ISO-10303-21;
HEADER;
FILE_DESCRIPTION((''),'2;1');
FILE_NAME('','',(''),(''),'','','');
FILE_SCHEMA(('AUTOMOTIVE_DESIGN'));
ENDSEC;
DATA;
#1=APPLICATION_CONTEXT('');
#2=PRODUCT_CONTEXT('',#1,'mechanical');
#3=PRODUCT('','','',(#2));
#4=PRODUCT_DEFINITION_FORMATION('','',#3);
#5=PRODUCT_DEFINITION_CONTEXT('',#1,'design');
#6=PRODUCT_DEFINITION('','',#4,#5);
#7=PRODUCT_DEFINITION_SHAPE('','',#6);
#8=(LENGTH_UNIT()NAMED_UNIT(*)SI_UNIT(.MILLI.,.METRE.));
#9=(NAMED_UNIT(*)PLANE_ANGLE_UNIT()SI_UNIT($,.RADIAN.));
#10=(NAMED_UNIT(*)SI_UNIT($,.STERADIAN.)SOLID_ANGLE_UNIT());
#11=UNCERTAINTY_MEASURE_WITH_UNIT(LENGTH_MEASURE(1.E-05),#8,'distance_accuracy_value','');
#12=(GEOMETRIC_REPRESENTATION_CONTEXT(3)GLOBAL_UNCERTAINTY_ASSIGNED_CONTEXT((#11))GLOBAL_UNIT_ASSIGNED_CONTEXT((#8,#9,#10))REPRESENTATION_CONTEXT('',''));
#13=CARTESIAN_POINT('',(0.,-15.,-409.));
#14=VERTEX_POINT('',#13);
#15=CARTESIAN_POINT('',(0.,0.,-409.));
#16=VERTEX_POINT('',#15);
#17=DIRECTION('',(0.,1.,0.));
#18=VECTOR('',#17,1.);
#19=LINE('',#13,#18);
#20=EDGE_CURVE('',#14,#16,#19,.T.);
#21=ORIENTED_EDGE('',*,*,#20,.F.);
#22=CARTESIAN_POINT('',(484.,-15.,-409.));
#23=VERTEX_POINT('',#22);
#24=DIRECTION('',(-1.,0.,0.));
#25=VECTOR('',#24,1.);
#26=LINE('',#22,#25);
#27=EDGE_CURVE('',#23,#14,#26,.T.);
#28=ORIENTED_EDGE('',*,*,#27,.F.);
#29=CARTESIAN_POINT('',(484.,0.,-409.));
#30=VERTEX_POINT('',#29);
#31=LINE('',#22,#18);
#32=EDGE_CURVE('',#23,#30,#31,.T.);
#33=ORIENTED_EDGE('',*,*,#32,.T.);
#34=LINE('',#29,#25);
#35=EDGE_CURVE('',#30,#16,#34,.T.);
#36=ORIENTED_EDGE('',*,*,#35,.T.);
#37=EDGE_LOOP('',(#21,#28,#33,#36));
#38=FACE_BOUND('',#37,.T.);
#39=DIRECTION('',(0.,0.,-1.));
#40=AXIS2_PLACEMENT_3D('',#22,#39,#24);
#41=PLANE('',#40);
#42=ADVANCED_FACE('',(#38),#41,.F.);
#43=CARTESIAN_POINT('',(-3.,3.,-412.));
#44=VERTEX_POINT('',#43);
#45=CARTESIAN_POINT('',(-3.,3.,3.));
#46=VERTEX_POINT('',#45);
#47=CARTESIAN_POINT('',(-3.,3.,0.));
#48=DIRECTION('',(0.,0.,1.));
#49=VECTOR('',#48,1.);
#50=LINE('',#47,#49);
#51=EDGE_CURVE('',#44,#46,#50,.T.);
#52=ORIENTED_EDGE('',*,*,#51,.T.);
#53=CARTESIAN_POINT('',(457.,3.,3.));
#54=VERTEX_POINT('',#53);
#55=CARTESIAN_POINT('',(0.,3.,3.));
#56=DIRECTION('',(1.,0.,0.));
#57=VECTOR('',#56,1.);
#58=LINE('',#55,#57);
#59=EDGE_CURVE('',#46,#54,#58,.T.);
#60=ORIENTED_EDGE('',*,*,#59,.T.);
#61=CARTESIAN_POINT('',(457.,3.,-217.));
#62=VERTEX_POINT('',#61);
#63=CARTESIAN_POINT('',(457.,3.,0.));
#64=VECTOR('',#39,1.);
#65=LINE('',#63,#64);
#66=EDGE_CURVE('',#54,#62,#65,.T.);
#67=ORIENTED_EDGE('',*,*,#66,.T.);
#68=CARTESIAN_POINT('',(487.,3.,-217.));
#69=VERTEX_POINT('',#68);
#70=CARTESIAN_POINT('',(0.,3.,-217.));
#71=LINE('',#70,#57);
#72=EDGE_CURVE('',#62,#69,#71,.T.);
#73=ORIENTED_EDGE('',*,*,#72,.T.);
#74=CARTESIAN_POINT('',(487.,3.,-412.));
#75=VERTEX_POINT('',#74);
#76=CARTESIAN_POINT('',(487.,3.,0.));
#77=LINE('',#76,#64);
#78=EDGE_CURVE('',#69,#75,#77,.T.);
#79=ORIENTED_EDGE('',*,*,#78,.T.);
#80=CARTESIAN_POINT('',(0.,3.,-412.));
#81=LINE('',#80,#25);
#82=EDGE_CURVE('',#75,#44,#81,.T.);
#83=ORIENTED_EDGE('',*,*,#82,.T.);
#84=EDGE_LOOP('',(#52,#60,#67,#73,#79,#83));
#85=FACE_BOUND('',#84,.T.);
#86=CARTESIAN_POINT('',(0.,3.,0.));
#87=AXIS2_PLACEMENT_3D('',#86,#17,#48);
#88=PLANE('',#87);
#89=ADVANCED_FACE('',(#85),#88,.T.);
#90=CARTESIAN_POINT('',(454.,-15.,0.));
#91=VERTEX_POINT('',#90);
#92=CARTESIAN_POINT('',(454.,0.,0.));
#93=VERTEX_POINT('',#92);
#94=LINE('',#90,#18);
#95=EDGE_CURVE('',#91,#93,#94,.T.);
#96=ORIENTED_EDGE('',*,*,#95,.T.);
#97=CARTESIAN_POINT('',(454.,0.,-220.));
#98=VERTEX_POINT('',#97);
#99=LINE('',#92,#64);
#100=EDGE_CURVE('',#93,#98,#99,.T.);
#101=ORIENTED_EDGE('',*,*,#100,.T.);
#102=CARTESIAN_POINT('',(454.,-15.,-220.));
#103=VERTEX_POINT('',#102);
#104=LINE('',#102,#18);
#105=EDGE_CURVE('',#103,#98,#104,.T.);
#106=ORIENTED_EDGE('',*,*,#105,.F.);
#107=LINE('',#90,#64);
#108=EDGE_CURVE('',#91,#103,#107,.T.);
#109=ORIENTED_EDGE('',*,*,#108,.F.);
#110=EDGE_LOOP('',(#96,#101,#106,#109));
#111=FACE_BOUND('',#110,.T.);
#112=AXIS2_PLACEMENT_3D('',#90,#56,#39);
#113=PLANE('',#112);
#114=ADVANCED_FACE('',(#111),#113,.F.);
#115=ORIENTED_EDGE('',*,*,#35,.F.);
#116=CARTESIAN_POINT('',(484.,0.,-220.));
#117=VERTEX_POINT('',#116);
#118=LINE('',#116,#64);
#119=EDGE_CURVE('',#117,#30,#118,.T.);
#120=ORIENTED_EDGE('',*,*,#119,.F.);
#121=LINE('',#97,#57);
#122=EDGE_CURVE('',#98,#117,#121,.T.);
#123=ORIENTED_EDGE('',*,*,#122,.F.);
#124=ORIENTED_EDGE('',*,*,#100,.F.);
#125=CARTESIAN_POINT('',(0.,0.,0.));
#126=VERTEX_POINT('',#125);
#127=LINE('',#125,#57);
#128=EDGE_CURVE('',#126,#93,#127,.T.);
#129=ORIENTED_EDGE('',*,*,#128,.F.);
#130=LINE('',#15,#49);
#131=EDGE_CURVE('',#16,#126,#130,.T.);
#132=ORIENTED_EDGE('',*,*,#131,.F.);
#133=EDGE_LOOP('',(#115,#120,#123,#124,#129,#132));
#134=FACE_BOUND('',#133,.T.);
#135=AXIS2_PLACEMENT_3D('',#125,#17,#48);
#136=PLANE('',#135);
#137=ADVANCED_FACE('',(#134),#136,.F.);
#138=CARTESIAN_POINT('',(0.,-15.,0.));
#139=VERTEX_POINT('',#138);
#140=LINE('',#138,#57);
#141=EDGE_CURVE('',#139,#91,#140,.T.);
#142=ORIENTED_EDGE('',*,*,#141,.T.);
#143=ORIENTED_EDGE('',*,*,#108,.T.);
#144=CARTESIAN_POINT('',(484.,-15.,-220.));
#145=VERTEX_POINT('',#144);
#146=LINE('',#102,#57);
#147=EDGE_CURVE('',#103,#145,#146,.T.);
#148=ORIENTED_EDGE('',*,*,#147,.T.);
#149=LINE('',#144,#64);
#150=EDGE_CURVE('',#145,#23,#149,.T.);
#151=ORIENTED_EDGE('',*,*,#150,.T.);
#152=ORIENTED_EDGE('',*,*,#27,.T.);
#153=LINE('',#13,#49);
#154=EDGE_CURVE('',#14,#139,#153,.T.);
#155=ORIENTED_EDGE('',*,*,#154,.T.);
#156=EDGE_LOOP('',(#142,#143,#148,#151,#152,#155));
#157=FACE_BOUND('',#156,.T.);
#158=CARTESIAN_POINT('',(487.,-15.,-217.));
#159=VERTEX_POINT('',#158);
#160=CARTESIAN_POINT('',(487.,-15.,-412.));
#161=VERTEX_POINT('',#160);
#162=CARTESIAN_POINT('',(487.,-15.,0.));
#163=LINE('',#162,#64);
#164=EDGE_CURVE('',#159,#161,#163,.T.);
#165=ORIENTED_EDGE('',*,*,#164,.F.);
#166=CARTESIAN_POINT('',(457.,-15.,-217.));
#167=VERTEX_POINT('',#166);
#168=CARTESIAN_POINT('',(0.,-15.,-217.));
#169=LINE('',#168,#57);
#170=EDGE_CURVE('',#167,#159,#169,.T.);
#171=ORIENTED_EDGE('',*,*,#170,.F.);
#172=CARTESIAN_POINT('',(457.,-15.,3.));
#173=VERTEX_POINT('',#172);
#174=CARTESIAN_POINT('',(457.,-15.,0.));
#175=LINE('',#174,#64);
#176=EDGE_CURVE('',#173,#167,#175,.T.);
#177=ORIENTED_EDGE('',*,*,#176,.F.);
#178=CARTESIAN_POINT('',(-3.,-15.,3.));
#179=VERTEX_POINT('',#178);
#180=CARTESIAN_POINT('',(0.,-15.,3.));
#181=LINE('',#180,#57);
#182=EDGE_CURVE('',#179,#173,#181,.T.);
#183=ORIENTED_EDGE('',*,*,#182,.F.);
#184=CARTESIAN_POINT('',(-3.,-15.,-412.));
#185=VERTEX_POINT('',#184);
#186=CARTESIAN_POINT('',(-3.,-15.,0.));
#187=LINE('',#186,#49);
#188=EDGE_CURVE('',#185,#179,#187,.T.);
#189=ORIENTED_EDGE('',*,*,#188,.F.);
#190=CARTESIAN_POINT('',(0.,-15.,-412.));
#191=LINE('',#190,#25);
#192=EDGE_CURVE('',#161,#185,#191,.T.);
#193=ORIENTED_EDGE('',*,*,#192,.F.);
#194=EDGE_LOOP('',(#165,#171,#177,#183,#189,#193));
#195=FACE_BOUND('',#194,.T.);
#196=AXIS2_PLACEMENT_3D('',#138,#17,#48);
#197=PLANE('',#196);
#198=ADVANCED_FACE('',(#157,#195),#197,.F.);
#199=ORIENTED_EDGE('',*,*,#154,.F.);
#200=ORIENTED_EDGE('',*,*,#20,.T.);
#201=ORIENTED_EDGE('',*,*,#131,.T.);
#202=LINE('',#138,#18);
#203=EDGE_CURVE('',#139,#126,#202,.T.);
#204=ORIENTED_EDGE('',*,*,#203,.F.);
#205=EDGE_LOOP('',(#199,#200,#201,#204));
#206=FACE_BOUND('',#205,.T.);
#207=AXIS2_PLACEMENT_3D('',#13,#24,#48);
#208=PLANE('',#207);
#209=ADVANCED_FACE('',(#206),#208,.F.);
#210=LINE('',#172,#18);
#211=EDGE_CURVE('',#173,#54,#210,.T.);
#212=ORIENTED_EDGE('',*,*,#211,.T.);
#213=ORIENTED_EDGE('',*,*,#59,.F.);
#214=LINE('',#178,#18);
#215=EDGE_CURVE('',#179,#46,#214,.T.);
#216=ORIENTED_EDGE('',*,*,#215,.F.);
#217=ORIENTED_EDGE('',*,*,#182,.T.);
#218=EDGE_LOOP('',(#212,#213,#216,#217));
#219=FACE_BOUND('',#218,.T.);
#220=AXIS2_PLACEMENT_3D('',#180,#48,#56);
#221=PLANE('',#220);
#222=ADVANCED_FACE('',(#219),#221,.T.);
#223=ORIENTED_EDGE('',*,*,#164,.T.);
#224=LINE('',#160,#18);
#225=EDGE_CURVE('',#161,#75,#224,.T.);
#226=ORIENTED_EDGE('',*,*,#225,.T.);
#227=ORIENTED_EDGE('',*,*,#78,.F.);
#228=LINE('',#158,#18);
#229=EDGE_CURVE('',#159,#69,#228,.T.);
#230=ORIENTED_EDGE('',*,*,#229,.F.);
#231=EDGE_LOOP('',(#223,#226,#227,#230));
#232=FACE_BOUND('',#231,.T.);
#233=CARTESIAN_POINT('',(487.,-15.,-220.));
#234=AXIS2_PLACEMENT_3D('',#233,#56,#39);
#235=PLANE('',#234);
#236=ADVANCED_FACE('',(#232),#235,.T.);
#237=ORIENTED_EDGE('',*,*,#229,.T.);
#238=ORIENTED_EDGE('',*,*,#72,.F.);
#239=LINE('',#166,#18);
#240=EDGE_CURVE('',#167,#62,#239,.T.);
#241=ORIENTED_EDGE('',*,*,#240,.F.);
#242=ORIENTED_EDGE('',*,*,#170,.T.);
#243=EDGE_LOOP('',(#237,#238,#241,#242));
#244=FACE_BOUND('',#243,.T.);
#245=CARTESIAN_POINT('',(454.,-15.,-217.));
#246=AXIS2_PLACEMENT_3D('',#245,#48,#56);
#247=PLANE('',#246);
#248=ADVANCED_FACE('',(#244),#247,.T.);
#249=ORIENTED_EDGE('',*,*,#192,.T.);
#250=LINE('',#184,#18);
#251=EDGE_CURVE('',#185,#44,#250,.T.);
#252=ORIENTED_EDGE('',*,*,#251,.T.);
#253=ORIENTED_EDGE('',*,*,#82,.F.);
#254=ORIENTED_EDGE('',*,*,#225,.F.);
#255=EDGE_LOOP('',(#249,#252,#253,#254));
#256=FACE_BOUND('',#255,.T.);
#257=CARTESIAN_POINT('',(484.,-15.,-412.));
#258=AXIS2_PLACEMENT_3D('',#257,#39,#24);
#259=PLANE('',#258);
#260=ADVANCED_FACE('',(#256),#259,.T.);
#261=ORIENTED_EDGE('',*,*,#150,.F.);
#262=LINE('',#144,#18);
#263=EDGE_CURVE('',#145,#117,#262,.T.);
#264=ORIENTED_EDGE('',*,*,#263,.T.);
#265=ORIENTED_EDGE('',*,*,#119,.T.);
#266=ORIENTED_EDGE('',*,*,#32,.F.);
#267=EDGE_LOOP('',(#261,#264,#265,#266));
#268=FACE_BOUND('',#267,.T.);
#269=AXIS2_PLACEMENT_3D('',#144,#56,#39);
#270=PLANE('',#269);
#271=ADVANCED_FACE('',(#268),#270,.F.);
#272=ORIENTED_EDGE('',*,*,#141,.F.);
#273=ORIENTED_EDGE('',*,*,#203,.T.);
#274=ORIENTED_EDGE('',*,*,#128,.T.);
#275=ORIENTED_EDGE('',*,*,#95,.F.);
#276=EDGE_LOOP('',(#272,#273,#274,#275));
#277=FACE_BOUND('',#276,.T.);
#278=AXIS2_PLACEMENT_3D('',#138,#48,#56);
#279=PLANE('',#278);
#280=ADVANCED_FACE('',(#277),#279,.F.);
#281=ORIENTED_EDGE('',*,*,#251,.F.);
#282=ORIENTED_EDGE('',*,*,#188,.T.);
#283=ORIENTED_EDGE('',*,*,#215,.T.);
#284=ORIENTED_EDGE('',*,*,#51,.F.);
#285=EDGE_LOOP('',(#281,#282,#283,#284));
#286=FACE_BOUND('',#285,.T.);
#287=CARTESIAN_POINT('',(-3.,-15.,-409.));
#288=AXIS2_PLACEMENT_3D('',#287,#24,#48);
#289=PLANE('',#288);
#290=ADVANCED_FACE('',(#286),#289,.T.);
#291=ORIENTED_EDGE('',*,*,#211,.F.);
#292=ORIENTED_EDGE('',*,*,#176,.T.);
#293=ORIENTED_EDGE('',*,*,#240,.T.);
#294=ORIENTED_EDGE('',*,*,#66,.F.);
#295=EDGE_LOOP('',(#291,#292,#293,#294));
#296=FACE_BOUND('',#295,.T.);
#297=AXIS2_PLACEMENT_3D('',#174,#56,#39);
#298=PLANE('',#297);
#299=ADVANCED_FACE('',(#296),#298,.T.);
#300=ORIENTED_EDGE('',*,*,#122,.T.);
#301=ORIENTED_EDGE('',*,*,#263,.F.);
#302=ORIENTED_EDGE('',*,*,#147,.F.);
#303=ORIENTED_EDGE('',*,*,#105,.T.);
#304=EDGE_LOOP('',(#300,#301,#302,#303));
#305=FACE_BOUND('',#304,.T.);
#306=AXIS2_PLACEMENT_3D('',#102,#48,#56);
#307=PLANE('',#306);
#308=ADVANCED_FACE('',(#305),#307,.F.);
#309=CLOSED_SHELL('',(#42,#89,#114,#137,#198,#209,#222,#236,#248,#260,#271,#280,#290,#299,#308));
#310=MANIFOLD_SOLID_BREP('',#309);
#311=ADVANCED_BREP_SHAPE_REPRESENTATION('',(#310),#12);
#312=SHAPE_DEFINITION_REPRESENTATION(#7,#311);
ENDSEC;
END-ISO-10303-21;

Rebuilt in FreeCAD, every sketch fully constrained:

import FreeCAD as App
import Part
import Sketcher


def faces_at(feature, points):
    """Names of the faces that lie closest to the given points."""
    faces = feature.Shape.Faces
    near = lambda p: min(range(len(faces)), key=lambda i: faces[i].distToShape(Part.Vertex(*p))[0])
    return sorted({f"Face{near(p) + 1}" for p in points})

doc = App.newDocument("Part")
body = doc.addObject("PartDesign::Body", "Body")

sketch1 = doc.addObject("Sketcher::SketchObject", "Sketch")
body.addObject(sketch1)
sketch1.AttachmentSupport = (doc.XZ_Plane, [""])
sketch1.MapMode = "FlatFace"
sketch1.addGeometry(Part.LineSegment(App.Vector(0, 0, 0), App.Vector(454, 0, 0)), False)
sketch1.addGeometry(Part.LineSegment(App.Vector(454, 0, 0), App.Vector(454, -220, 0)), False)
sketch1.addGeometry(Part.LineSegment(App.Vector(454, -220, 0), App.Vector(484, -220, 0)), False)
sketch1.addGeometry(Part.LineSegment(App.Vector(484, -220, 0), App.Vector(484, -409, 0)), False)
sketch1.addGeometry(Part.LineSegment(App.Vector(484, -409, 0), App.Vector(0, -409, 0)), False)
sketch1.addGeometry(Part.LineSegment(App.Vector(0, -409, 0), App.Vector(0, 0, 0)), False)
sketch1.addConstraint(Sketcher.Constraint("Coincident", 0, 2, 1, 1))
sketch1.addConstraint(Sketcher.Constraint("Coincident", 1, 2, 2, 1))
sketch1.addConstraint(Sketcher.Constraint("Coincident", 2, 2, 3, 1))
sketch1.addConstraint(Sketcher.Constraint("Coincident", 3, 2, 4, 1))
sketch1.addConstraint(Sketcher.Constraint("Coincident", 4, 2, 5, 1))
sketch1.addConstraint(Sketcher.Constraint("Coincident", 5, 2, 0, 1))
sketch1.addConstraint(Sketcher.Constraint("Horizontal", 0))
sketch1.addConstraint(Sketcher.Constraint("Vertical", 1))
sketch1.addConstraint(Sketcher.Constraint("Horizontal", 2))
sketch1.addConstraint(Sketcher.Constraint("Vertical", 3))
sketch1.addConstraint(Sketcher.Constraint("Horizontal", 4))
sketch1.addConstraint(Sketcher.Constraint("Vertical", 5))
sketch1.addConstraint(Sketcher.Constraint("Coincident", 5, 2, -1, 1))
sketch1.addConstraint(Sketcher.Constraint("DistanceX", 0, 1, 0, 2, 454.0))
sketch1.addConstraint(Sketcher.Constraint("DistanceX", 2, 1, 2, 2, 30.0))
sketch1.addConstraint(Sketcher.Constraint("DistanceY", 1, 2, 1, 1, 220.0))
sketch1.addConstraint(Sketcher.Constraint("DistanceY", 3, 2, 3, 1, 189.0))
pad1 = doc.addObject("PartDesign::Pad", "Pad")
body.addObject(pad1)
pad1.Profile = sketch1
pad1.Length = 15
doc.recompute()

thickness = doc.addObject("PartDesign::Thickness", "Thickness")
body.addObject(thickness)
thickness.Base = (pad1, faces_at(pad1, [(242, -15, -204.5)]))
thickness.Value = 3
thickness.Reversed = False
thickness.Join = "Intersection"

doc.recompute()
